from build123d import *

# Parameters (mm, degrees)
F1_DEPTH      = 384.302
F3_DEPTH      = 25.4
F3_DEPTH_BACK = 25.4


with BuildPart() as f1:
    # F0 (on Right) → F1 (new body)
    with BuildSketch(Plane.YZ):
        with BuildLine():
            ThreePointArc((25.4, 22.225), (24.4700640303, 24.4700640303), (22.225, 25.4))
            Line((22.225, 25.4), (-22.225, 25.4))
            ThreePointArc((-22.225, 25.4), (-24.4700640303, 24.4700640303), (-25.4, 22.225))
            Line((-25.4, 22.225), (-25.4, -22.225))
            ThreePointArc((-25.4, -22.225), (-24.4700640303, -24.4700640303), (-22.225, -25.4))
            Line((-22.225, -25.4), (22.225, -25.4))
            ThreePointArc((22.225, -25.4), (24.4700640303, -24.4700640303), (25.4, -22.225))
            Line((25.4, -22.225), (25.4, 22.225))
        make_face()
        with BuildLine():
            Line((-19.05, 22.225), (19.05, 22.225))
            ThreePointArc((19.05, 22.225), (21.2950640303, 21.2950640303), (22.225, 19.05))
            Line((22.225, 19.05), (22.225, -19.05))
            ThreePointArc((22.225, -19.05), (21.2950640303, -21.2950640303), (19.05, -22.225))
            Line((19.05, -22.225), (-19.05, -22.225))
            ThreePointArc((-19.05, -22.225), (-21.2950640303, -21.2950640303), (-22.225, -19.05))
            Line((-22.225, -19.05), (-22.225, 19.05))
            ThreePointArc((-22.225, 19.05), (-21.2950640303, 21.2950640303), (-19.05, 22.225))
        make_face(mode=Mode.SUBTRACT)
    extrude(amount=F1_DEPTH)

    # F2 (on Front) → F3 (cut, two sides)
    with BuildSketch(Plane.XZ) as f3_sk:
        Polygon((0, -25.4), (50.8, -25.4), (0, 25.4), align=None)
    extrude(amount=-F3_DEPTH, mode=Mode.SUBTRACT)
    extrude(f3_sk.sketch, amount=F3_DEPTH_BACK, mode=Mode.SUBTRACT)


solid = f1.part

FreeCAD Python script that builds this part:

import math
import FreeCAD as App
import Part
import Sketcher
from FreeCAD import Vector
Q = App.Units.Quantity


def add_polygon(sketch, points):
    """Adds a closed chain of lines whose ends are joined by coincident constraints."""
    first, n = sketch.GeometryCount, len(points)
    for a, b in zip(points, points[1:] + points[:1]):
        sketch.addGeometry(Part.LineSegment(App.Vector(*a, 0), App.Vector(*b, 0)), False)
    for i in range(n):
        sketch.addConstraint(Sketcher.Constraint("Coincident", first + i, 2, first + (i + 1) % n, 1))

doc = App.newDocument("Part")
body = doc.addObject("PartDesign::Body", "Body")

sketch1 = body.newObject("Sketcher::SketchObject", "Sketch")
sketch1.AttachmentSupport = (doc.getObject("YZ_Plane"), [""])
sketch1.MapMode = "FlatFace"
sketch1.addGeometry([
    Part.ArcOfCircle(Part.Circle(Vector(22.2, 22.2, 0), Vector(0, 0, 1), 3.2), math.radians(0), math.radians(90)),
    Part.LineSegment(Vector(22.2, 25.4, 0), Vector(-22.2, 25.4, 0)),
    Part.ArcOfCircle(Part.Circle(Vector(-22.2, 22.2, 0), Vector(0, 0, 1), 3.2), math.radians(90), math.radians(180)),
    Part.LineSegment(Vector(-25.4, 22.2, 0), Vector(-25.4, -22.2, 0)),
    Part.ArcOfCircle(Part.Circle(Vector(-22.2, -22.2, 0), Vector(0, 0, 1), 3.2), math.radians(180), math.radians(270)),
    Part.LineSegment(Vector(-22.2, -25.4, 0), Vector(22.2, -25.4, 0)),
    Part.ArcOfCircle(Part.Circle(Vector(22.2, -22.2, 0), Vector(0, 0, 1), 3.2), math.radians(-90), math.radians(0)),
    Part.LineSegment(Vector(25.4, -22.2, 0), Vector(25.4, 22.2, 0)),
    Part.ArcOfCircle(Part.Circle(Vector(-19.1, 19.1, 0), Vector(0, 0, 1), 3.2), math.radians(90), math.radians(180)),
    Part.LineSegment(Vector(-19.1, 22.2, 0), Vector(19.1, 22.2, 0)),
    Part.ArcOfCircle(Part.Circle(Vector(19.1, 19.1, 0), Vector(0, 0, 1), 3.2), math.radians(0), math.radians(90)),
    Part.LineSegment(Vector(22.2, 19.1, 0), Vector(22.2, -19.1, 0)),
    Part.ArcOfCircle(Part.Circle(Vector(19.1, -19.1, 0), Vector(0, 0, 1), 3.2), math.radians(-90), math.radians(0)),
    Part.LineSegment(Vector(19.1, -22.2, 0), Vector(-19.1, -22.2, 0)),
    Part.ArcOfCircle(Part.Circle(Vector(-19.1, -19.1, 0), Vector(0, 0, 1), 3.2), math.radians(180), math.radians(270)),
    Part.LineSegment(Vector(-22.2, -19.1, 0), Vector(-22.2, 19.1, 0)),
], False)
sketch1.addConstraint([
    Sketcher.Constraint("Tangent", 0, 2, 1, 1),
    Sketcher.Constraint("Tangent", 1, 2, 2, 1),
    Sketcher.Constraint("Tangent", 2, 2, 3, 1),
    Sketcher.Constraint("Tangent", 3, 2, 4, 1),
    Sketcher.Constraint("Tangent", 4, 2, 5, 1),
    Sketcher.Constraint("Tangent", 5, 2, 6, 1),
    Sketcher.Constraint("Tangent", 6, 2, 7, 1),
    Sketcher.Constraint("Tangent", 7, 2, 0, 1),
    Sketcher.Constraint("Tangent", 8, 1, 9, 1),
    Sketcher.Constraint("Tangent", 9, 2, 10, 2),
    Sketcher.Constraint("Tangent", 10, 1, 11, 1),
    Sketcher.Constraint("Tangent", 11, 2, 12, 2),
    Sketcher.Constraint("Tangent", 12, 1, 13, 1),
    Sketcher.Constraint("Tangent", 13, 2, 14, 2),
    Sketcher.Constraint("Tangent", 14, 1, 15, 1),
    Sketcher.Constraint("Tangent", 15, 2, 8, 2),
    Sketcher.Constraint("Horizontal", 1),
    Sketcher.Constraint("Vertical", 3),
    Sketcher.Constraint("Horizontal", 5),
    Sketcher.Constraint("Vertical", 7),
    Sketcher.Constraint("Horizontal", 9),
    Sketcher.Constraint("Vertical", 11),
    Sketcher.Constraint("Horizontal", 13),
    Sketcher.Constraint("Vertical", 15),
    Sketcher.Constraint("Equal", 0, 2),
    Sketcher.Constraint("Equal", 2, 4),
    Sketcher.Constraint("Equal", 4, 6),
    Sketcher.Constraint("Equal", 6, 8),
    Sketcher.Constraint("Equal", 8, 10),
    Sketcher.Constraint("Equal", 10, 12),
    Sketcher.Constraint("Equal", 12, 14),
    Sketcher.Constraint("Symmetric", 0, 3, 4, 3, -1, 1),
    Sketcher.Constraint("Symmetric", 8, 3, 12, 3, -1, 1),
    Sketcher.Constraint("Horizontal", 7, 2, 8, 1),
    Sketcher.Constraint("Vertical", 5, 2, 10, 1),
    Sketcher.Constraint("Equal", 5, 3),
    Sketcher.Constraint("DistanceX", 9, 1, 9, 2, Q("1.5 in")),
    Sketcher.Constraint("DistanceY", -1, 1, 0, 2, Q("1 in")),
])
pad1 = body.newObject("PartDesign::Pad", "Pad")
pad1.Profile = sketch1
pad1.Length = Q("15.13 in")

sketch2 = body.newObject("Sketcher::SketchObject", "Sketch001")
sketch2.AttachmentSupport = (doc.getObject("XZ_Plane"), [""])
sketch2.MapMode = "FlatFace"
add_polygon(sketch2, [(0, -25), (51, -25), (0, 25)])
sketch2.addConstraint([
    Sketcher.Constraint("Horizontal", 0),
    Sketcher.Constraint("Vertical", 2),
    Sketcher.Constraint("Symmetric", 1, 2, 2, 2, -1, 1),
    Sketcher.Constraint("Equal", 0, 2),
    Sketcher.Constraint("DistanceX", 0, 1, 0, 2, Q("2 in")),
])
pocket1 = body.newObject("PartDesign::Pocket", "Pocket")
pocket1.Profile = sketch2
pocket1.Type = "ThroughAll"
pocket1.Midplane = True

doc.recompute()
